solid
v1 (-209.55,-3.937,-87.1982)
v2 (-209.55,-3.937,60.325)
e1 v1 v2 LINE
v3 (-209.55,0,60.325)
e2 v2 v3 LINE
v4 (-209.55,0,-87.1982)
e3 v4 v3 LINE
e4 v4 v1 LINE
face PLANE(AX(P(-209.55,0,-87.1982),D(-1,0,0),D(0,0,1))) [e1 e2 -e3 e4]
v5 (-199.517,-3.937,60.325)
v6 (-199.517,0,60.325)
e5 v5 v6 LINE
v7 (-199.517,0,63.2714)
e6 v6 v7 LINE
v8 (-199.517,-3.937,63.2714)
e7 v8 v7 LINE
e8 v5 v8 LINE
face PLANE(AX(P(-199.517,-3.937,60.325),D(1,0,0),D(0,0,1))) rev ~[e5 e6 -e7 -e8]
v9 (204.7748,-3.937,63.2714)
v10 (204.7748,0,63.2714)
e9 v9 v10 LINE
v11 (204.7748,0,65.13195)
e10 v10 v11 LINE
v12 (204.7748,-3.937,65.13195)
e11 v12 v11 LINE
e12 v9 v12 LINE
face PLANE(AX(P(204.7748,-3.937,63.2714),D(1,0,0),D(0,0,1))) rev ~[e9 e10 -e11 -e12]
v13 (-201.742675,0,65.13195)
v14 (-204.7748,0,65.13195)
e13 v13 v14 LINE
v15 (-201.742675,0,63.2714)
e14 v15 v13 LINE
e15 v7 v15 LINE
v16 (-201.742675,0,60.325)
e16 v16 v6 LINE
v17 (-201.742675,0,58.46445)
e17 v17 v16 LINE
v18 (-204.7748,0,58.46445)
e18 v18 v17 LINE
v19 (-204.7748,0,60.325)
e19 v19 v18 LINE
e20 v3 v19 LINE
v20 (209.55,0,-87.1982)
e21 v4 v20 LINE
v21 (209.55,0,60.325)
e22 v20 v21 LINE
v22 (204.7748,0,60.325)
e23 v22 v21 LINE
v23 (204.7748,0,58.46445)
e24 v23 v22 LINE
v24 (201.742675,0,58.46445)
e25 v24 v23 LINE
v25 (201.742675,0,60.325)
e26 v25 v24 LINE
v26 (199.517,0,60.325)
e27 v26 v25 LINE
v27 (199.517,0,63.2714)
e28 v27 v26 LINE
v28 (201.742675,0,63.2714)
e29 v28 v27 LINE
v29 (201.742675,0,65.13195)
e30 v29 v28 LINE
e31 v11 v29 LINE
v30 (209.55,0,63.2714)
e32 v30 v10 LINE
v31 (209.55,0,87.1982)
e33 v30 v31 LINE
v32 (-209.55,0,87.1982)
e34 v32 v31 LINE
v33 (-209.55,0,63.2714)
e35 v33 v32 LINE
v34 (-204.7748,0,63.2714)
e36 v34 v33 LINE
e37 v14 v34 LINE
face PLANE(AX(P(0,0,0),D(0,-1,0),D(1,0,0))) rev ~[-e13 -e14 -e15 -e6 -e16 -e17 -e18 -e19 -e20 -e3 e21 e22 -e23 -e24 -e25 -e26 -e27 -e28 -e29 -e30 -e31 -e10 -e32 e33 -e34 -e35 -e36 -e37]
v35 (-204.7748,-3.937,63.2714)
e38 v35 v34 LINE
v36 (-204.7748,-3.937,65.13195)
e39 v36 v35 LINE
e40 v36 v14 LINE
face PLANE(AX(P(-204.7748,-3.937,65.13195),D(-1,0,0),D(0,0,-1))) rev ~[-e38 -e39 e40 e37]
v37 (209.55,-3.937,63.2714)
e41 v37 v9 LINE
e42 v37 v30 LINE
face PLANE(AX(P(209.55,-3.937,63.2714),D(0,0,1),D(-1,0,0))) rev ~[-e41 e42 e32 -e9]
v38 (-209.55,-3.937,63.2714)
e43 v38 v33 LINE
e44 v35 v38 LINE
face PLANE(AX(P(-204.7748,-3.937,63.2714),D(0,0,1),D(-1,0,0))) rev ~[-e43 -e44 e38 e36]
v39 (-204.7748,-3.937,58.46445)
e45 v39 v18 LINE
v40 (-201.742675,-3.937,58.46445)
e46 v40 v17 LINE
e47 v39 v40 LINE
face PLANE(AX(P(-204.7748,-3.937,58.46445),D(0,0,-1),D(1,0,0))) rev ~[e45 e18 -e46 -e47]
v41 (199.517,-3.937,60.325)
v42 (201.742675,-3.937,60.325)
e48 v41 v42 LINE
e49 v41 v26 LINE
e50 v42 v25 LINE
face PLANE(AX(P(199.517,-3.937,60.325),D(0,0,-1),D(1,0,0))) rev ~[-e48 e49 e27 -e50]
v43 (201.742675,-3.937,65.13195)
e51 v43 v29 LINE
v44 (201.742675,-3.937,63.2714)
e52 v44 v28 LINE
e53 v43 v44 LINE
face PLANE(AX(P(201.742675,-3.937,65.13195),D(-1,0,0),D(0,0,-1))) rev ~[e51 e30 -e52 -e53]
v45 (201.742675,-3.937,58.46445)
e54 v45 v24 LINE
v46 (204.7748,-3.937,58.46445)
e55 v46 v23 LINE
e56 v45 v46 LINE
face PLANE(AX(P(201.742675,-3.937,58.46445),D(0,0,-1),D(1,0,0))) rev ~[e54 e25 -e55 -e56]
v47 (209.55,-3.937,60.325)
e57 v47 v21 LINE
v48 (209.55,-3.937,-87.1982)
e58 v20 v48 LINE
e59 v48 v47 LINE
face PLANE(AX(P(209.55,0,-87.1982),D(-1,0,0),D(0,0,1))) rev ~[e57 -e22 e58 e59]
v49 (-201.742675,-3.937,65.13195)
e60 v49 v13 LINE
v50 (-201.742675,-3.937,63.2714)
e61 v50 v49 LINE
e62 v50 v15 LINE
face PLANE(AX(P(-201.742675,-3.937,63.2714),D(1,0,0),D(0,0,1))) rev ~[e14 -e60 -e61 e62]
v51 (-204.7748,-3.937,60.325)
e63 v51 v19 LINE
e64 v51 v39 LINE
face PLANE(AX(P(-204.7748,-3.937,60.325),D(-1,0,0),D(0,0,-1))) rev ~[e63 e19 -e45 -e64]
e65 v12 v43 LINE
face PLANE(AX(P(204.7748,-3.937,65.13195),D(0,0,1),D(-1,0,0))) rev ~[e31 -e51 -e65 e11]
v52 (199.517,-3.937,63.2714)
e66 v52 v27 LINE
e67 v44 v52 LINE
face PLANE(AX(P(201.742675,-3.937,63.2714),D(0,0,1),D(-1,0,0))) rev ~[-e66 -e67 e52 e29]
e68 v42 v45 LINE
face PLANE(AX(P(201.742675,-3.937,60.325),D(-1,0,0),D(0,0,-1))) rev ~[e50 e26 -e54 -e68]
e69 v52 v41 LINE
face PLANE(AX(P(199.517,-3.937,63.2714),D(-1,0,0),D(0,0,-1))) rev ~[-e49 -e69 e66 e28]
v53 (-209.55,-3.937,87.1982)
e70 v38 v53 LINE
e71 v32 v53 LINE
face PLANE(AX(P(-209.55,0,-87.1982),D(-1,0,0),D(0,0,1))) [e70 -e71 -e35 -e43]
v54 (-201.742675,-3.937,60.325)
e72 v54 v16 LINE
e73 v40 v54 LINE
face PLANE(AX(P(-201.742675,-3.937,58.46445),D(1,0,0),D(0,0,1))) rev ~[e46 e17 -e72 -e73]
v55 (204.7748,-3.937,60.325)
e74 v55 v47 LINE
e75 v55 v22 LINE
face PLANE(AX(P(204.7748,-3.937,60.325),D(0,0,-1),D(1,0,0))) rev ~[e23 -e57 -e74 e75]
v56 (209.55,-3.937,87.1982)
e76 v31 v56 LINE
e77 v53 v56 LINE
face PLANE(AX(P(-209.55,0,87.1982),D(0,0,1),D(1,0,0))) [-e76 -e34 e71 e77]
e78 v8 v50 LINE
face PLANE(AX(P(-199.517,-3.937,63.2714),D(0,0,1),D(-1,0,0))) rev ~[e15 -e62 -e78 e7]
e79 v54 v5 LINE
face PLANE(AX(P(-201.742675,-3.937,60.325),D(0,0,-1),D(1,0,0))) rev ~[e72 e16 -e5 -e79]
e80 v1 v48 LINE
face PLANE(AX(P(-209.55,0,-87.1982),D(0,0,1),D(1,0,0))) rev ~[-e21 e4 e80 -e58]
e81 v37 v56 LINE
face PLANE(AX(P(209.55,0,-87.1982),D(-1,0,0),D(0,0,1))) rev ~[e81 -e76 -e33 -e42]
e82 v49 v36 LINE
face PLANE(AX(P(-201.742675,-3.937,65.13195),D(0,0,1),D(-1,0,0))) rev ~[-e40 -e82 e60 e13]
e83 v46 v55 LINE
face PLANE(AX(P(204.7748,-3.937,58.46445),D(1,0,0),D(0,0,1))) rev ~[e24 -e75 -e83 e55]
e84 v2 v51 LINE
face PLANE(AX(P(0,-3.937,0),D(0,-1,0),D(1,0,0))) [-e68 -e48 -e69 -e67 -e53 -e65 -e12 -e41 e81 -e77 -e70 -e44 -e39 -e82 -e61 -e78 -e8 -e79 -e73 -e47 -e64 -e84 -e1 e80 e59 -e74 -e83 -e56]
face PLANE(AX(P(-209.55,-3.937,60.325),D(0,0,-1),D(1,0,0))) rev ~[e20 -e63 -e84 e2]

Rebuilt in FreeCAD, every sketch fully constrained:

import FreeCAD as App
import Part
import Sketcher
from FreeCAD import Vector
Q = App.Units.Quantity


def add_polygon(sketch, points):
    """Adds a closed chain of lines whose ends are joined by coincident constraints."""
    first, n = sketch.GeometryCount, len(points)
    for a, b in zip(points, points[1:] + points[:1]):
        sketch.addGeometry(Part.LineSegment(App.Vector(*a, 0), App.Vector(*b, 0)), False)
    for i in range(n):
        sketch.addConstraint(Sketcher.Constraint("Coincident", first + i, 2, first + (i + 1) % n, 1))

doc = App.newDocument("Part")
body = doc.addObject("PartDesign::Body", "Body")

sketch1 = body.newObject("Sketcher::SketchObject", "Sketch")
sketch1.AttachmentSupport = (doc.getObject("XZ_Plane"), [""])
sketch1.MapMode = "FlatFace"
add_polygon(sketch1, [(-210, 87), (-210, -87), (210, -87), (210, 87)])
sketch1.addConstraint([
    Sketcher.Constraint("Vertical", 0),
    Sketcher.Constraint("Horizontal", 1),
    Sketcher.Constraint("Vertical", 2),
    Sketcher.Constraint("Horizontal", 3),
    Sketcher.Constraint("Symmetric", 0, 2, 2, 2, -1, 1),
    Sketcher.Constraint("DistanceX", 1, 1, 1, 2, Q("16.5 in")),
    Sketcher.Constraint("DistanceY", 0, 2, 0, 1, Q("6.866 in")),
])
pad1 = body.newObject("PartDesign::Pad", "Pad")
pad1.Profile = sketch1
pad1.Length = Q("0.155 in")

sketch2 = body.newObject("Sketcher::SketchObject", "Sketch001")
sketch2.AttachmentSupport = (doc.getObject("XZ_Plane"), [""])
sketch2.MapMode = "FlatFace"
sketch2.AttachmentOffset = App.Placement(Vector(0, 0, 0.155 * 25.4), App.Rotation())
add_polygon(sketch2, [(-204.8, 60.3), (-204.8, 58.5), (-201.7, 58.5), (-201.7, 60.3), (-199.5, 60.3), (-199.5, 63.3), (-201.7, 63.3), (-201.7, 65.1), (-204.8, 65.1), (-204.8, 63.3), (-209.6, 63.3), (-209.6, 60.3)])
add_polygon(sketch2, [(201.7, 58.5), (204.8, 58.5), (204.8, 60.3), (209.6, 60.3), (209.6, 63.3), (204.8, 63.3), (204.8, 65.1), (201.7, 65.1), (201.7, 63.3), (199.5, 63.3), (199.5, 60.3), (201.7, 60.3)])
sketch2.addConstraint([
    Sketcher.Constraint("Vertical", 0),
    Sketcher.Constraint("Horizontal", 1),
    Sketcher.Constraint("Vertical", 2),
    Sketcher.Constraint("Horizontal", 3),
    Sketcher.Constraint("Vertical", 4),
    Sketcher.Constraint("Horizontal", 5),
    Sketcher.Constraint("Vertical", 6),
    Sketcher.Constraint("Horizontal", 7),
    Sketcher.Constraint("Vertical", 8),
    Sketcher.Constraint("Horizontal", 9),
    Sketcher.Constraint("Vertical", 10),
    Sketcher.Constraint("Horizontal", 11),
    Sketcher.Constraint("Horizontal", 12),
    Sketcher.Constraint("Vertical", 13),
    Sketcher.Constraint("Horizontal", 14),
    Sketcher.Constraint("Vertical", 15),
    Sketcher.Constraint("Horizontal", 16),
    Sketcher.Constraint("Vertical", 17),
    Sketcher.Constraint("Horizontal", 18),
    Sketcher.Constraint("Vertical", 19),
    Sketcher.Constraint("Horizontal", 20),
    Sketcher.Constraint("Vertical", 21),
    Sketcher.Constraint("Horizontal", 22),
    Sketcher.Constraint("Vertical", 23),
    Sketcher.Constraint("Symmetric", 0, 2, 12, 2, -2),
    Sketcher.Constraint("Symmetric", 10, 2, 14, 2, -2),
    Sketcher.Constraint("Symmetric", 8, 2, 16, 2, -2),
    Sketcher.Constraint("Symmetric", 6, 2, 18, 2, -2),
    Sketcher.Constraint("Symmetric", 4, 2, 20, 2, -2),
    Sketcher.Constraint("Symmetric", 2, 2, 22, 2, -2),
    Sketcher.Constraint("Horizontal", 5, 2, 8, 2),
    Sketcher.Constraint("Horizontal", 3, 2, 10, 2),
    Sketcher.Constraint("Vertical", 2, 2, 5, 2),
    Sketcher.Constraint("Vertical", 0, 2, 7, 2),
    Sketcher.Constraint("Equal", 2, 6),
    Sketcher.Constraint("DistanceX", 9, 2, 9, 1, Q("0.188 in")),
    Sketcher.Constraint("DistanceY", 4, 1, 4, 2, Q("0.116 in")),
    Sketcher.Constraint("DistanceX", 9, 2, -1, 1, Q("8.25 in")),
    Sketcher.Constraint("DistanceY", -1, 1, 2, 2, Q("2.375 in")),
    Sketcher.Constraint("DistanceX", 3, 2, -1, 1, Q("7.855 in")),
    Sketcher.Constraint("DistanceY", 1, 2, 6, 2, Q("0.2625 in")),
    Sketcher.Constraint("DistanceX", 1, 1, 1, 2, Q("3.032125 mm")),
])
pocket1 = body.newObject("PartDesign::Pocket", "Pocket")
pocket1.Profile = sketch2
pocket1.Type = "ThroughAll"

doc.recompute()
